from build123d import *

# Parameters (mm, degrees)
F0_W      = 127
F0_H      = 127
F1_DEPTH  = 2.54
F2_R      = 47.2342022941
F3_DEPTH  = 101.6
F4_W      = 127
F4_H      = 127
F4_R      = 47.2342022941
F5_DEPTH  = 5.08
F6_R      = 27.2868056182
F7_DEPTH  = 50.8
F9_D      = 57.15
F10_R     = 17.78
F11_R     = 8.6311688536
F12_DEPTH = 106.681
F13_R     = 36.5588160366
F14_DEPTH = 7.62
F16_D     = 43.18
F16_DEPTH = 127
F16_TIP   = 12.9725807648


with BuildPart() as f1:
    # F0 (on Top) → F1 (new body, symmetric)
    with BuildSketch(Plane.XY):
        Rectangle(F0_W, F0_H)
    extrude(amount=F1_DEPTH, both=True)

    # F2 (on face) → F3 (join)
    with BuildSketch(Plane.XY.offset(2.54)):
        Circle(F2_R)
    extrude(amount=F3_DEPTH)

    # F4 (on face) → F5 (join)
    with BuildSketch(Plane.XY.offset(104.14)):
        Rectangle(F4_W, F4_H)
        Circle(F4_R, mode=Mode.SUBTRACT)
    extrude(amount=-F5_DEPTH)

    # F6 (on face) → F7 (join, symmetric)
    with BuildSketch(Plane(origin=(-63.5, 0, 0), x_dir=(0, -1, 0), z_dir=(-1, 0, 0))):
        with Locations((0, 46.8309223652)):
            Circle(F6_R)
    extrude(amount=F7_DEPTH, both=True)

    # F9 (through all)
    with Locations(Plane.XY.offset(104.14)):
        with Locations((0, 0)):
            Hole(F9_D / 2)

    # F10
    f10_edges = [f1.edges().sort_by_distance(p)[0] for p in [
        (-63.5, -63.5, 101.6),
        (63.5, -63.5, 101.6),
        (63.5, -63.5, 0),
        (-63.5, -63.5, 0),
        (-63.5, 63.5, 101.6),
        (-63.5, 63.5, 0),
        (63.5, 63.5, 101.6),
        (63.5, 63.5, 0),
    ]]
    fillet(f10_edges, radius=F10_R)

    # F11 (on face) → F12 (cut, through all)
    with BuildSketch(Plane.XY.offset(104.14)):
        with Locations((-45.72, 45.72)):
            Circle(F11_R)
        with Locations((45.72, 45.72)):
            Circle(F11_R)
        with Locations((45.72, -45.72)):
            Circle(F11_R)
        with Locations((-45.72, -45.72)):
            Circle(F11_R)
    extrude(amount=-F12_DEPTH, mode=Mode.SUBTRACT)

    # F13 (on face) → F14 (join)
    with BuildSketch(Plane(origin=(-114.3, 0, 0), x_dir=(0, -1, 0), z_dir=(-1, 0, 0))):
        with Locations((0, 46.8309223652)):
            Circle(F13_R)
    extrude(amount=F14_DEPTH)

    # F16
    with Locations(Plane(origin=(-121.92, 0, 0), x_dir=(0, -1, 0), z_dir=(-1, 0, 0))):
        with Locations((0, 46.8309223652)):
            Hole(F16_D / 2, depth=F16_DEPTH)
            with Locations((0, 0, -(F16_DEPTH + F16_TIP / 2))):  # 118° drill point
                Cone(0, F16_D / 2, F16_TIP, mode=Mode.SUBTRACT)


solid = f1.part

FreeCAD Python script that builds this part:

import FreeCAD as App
import Part
import Sketcher
Q = App.Units.Quantity


def edges_at(feature, points):
    """Names of the edges that pass closest to the given points."""
    edges = feature.Shape.Edges
    near = lambda p: min(range(len(edges)), key=lambda i: edges[i].distToShape(Part.Vertex(*p))[0])
    return sorted({f"Edge{near(p) + 1}" for p in points})


def add_polygon(sketch, points):
    """Adds a closed chain of lines whose ends are joined by coincident constraints."""
    first, n = sketch.GeometryCount, len(points)
    for a, b in zip(points, points[1:] + points[:1]):
        sketch.addGeometry(Part.LineSegment(App.Vector(*a, 0), App.Vector(*b, 0)), False)
    for i in range(n):
        sketch.addConstraint(Sketcher.Constraint("Coincident", first + i, 2, first + (i + 1) % n, 1))

doc = App.newDocument("Part")
body = doc.addObject("PartDesign::Body", "Body")

sketch1 = body.newObject("Sketcher::SketchObject", "Sketch")
sketch1.AttachmentSupport = (doc.getObject("XY_Plane"), [""])
sketch1.MapMode = "FlatFace"
add_polygon(sketch1, [(-63.5, 63.5), (-63.5, -63.5), (63.5, -63.5), (63.5, 63.5)])
sketch1.addConstraint([
    Sketcher.Constraint("Vertical", 0),
    Sketcher.Constraint("Horizontal", 1),
    Sketcher.Constraint("Vertical", 2),
    Sketcher.Constraint("Horizontal", 3),
    Sketcher.Constraint("Symmetric", 0, 2, 2, 2, -1, 1),
    Sketcher.Constraint("Equal", 3, 0),
    Sketcher.Constraint("DistanceX", 1, 1, 1, 2, Q("5 in")),
])
pad1 = body.newObject("PartDesign::Pad", "Pad")
pad1.Profile = sketch1
pad1.Length = Q("0.2 in")
pad1.Midplane = True

sketch2 = body.newObject("Sketcher::SketchObject", "Sketch001")
sketch2.AttachmentSupport = (doc.getObject("XY_Plane"), [""])
sketch2.MapMode = "FlatFace"
sketch2.AttachmentOffset = App.Placement(App.Vector(0, 0, 0.1 * 25.4), App.Rotation())
sketch2.addGeometry(Part.Circle(App.Vector(0, 0, 0), App.Vector(0, 0, 1), 47.234202), False)
sketch2.addConstraint([
    Sketcher.Constraint("Coincident", 0, 3, -1, 1),
    Sketcher.Constraint("Diameter", 0, 94.468405),
])
pad2 = body.newObject("PartDesign::Pad", "Pad001")
pad2.Profile = sketch2
pad2.Length = Q("4 in")

sketch3 = body.newObject("Sketcher::SketchObject", "Sketch002")
sketch3.AttachmentSupport = (doc.getObject("XY_Plane"), [""])
sketch3.MapMode = "FlatFace"
sketch3.AttachmentOffset = App.Placement(App.Vector(0, 0, 4.1 * 25.4), App.Rotation())
add_polygon(sketch3, [(-63.5, 63.5), (-63.5, -63.5), (63.5, -63.5), (63.5, 63.5)])
sketch3.addGeometry(Part.Circle(App.Vector(0, 0, 0), App.Vector(0, 0, 1), 47.234202), False)
sketch3.addConstraint([
    Sketcher.Constraint("Vertical", 0),
    Sketcher.Constraint("Horizontal", 1),
    Sketcher.Constraint("Vertical", 2),
    Sketcher.Constraint("Horizontal", 3),
    Sketcher.Constraint("Coincident", 4, 3, -1, 1),
    Sketcher.Constraint("Symmetric", 0, 2, 2, 2, -1, 1),
    Sketcher.Constraint("Equal", 3, 0),
    Sketcher.Constraint("DistanceX", 1, 1, 1, 2, Q("5 in")),
    Sketcher.Constraint("Diameter", 4, 94.468405),
])
pad3 = body.newObject("PartDesign::Pad", "Pad002")
pad3.Profile = sketch3
pad3.Length = Q("0.2 in")
pad3.Reversed = True

sketch4 = body.newObject("Sketcher::SketchObject", "Sketch003")
sketch4.AttachmentSupport = (doc.getObject("YZ_Plane"), [""])
sketch4.MapMode = "FlatFace"
sketch4.AttachmentOffset = App.Placement(App.Vector(0, 0, -2.5 * 25.4), App.Rotation())
sketch4.addGeometry(Part.Circle(App.Vector(0, 46.830922, 0), App.Vector(0, 0, 1), 27.286806), False)
sketch4.addConstraint([
    Sketcher.Constraint("PointOnObject", 0, 3, -2),
    Sketcher.Constraint("Diameter", 0, 54.573611),
    Sketcher.Constraint("DistanceY", -1, 1, 0, 3, 46.830922),
])
pad4 = body.newObject("PartDesign::Pad", "Pad003")
pad4.Profile = sketch4
pad4.Length = Q("4 in")
pad4.Midplane = True

sketch5 = body.newObject("Sketcher::SketchObject", "Sketch004")
sketch5.AttachmentSupport = (doc.getObject("XY_Plane"), [""])
sketch5.MapMode = "FlatFace"
sketch5.AttachmentOffset = App.Placement(App.Vector(0, 0, 4.1 * 25.4), App.Rotation())
sketch5.addGeometry(Part.Circle(App.Vector(0, 0, 0), App.Vector(0, 0, 1), 28.575), False)
sketch5.addConstraint([
    Sketcher.Constraint("Coincident", 0, 3, -1, 1),
    Sketcher.Constraint("Diameter", 0, Q("2.25 in")),
])
doc.recompute()
hole = body.newObject("PartDesign::Hole", "Hole")
hole.Profile = sketch5
hole.ThreadType = "None"
hole.Diameter = Q("2.25 in")
hole.DepthType = "ThroughAll"
doc.recompute()

fillet = body.newObject("PartDesign::Fillet", "Fillet")
fillet.Base = (hole, edges_at(hole, [
    (-63.5, -63.5, 101.6),
    (63.5, -63.5, 101.6),
    (63.5, -63.5, 0),
    (-63.5, -63.5, 0),
    (-63.5, 63.5, 101.6),
    (-63.5, 63.5, 0),
    (63.5, 63.5, 101.6),
    (63.5, 63.5, 0),
]))
fillet.Radius = Q("0.7 in")

sketch6 = body.newObject("Sketcher::SketchObject", "Sketch005")
sketch6.AttachmentSupport = (doc.getObject("XY_Plane"), [""])
sketch6.MapMode = "FlatFace"
sketch6.AttachmentOffset = App.Placement(App.Vector(0, 0, 4.1 * 25.4), App.Rotation())
sketch6.addGeometry([
    Part.Circle(App.Vector(-45.72, 45.72, 0), App.Vector(0, 0, 1), 8.631169),
    Part.Circle(App.Vector(45.72, 45.72, 0), App.Vector(0, 0, 1), 8.631169),
    Part.Circle(App.Vector(45.72, -45.72, 0), App.Vector(0, 0, 1), 8.631169),
    Part.Circle(App.Vector(-45.72, -45.72, 0), App.Vector(0, 0, 1), 8.631169),
], False)
sketch6.addConstraint([
    Sketcher.Constraint("Equal", 0, 1),
    Sketcher.Constraint("Equal", 1, 2),
    Sketcher.Constraint("Equal", 2, 3),
    Sketcher.Constraint("Symmetric", 0, 3, 2, 3, -1, 1),
    Sketcher.Constraint("Symmetric", 1, 3, 3, 3, -1, 1),
    Sketcher.Constraint("Symmetric", 0, 3, 1, 3, -2),
    Sketcher.Constraint("DistanceX", 0, 3, -1, 1, Q("1.8 in")),
    Sketcher.Constraint("DistanceY", -1, 1, 0, 3, Q("1.8 in")),
    Sketcher.Constraint("Diameter", 0, 17.262338),
])
pocket1 = body.newObject("PartDesign::Pocket", "Pocket")
pocket1.Profile = sketch6
pocket1.Type = "ThroughAll"

sketch7 = body.newObject("Sketcher::SketchObject", "Sketch006")
sketch7.AttachmentSupport = (doc.getObject("YZ_Plane"), [""])
sketch7.MapMode = "FlatFace"
sketch7.AttachmentOffset = App.Placement(App.Vector(0, 0, -4.5 * 25.4), App.Rotation())
sketch7.addGeometry(Part.Circle(App.Vector(0, 46.830922, 0), App.Vector(0, 0, 1), 36.558816), False)
sketch7.addConstraint([
    Sketcher.Constraint("PointOnObject", 0, 3, -2),
    Sketcher.Constraint("Diameter", 0, 73.117632),
    Sketcher.Constraint("DistanceY", -1, 1, 0, 3, 46.830922),
])
pad5 = body.newObject("PartDesign::Pad", "Pad004")
pad5.Profile = sketch7
pad5.Length = Q("0.3 in")
pad5.Reversed = True

sketch8 = body.newObject("Sketcher::SketchObject", "Sketch007")
sketch8.AttachmentSupport = (doc.getObject("YZ_Plane"), [""])
sketch8.MapMode = "FlatFace"
sketch8.AttachmentOffset = App.Placement(App.Vector(0, 0, -4.8 * 25.4), App.Rotation())
sketch8.addGeometry(Part.Circle(App.Vector(0, 46.830922, 0), App.Vector(0, 0, 1), 21.59), False)
sketch8.addConstraint([
    Sketcher.Constraint("PointOnObject", 0, 3, -2),
    Sketcher.Constraint("Diameter", 0, Q("1.7 in")),
    Sketcher.Constraint("DistanceY", -1, 1, 0, 3, 46.830922),
])
doc.recompute()
hole2 = body.newObject("PartDesign::Hole", "Hole001")
hole2.Profile = sketch8
hole2.ThreadType = "None"
hole2.Diameter = Q("1.7 in")
hole2.DepthType = "Dimension"
hole2.Depth = Q("5 in")
hole2.DrillPoint = "Angled"
hole2.DrillPointAngle = 118
hole2.Reversed = True

doc.recompute()
